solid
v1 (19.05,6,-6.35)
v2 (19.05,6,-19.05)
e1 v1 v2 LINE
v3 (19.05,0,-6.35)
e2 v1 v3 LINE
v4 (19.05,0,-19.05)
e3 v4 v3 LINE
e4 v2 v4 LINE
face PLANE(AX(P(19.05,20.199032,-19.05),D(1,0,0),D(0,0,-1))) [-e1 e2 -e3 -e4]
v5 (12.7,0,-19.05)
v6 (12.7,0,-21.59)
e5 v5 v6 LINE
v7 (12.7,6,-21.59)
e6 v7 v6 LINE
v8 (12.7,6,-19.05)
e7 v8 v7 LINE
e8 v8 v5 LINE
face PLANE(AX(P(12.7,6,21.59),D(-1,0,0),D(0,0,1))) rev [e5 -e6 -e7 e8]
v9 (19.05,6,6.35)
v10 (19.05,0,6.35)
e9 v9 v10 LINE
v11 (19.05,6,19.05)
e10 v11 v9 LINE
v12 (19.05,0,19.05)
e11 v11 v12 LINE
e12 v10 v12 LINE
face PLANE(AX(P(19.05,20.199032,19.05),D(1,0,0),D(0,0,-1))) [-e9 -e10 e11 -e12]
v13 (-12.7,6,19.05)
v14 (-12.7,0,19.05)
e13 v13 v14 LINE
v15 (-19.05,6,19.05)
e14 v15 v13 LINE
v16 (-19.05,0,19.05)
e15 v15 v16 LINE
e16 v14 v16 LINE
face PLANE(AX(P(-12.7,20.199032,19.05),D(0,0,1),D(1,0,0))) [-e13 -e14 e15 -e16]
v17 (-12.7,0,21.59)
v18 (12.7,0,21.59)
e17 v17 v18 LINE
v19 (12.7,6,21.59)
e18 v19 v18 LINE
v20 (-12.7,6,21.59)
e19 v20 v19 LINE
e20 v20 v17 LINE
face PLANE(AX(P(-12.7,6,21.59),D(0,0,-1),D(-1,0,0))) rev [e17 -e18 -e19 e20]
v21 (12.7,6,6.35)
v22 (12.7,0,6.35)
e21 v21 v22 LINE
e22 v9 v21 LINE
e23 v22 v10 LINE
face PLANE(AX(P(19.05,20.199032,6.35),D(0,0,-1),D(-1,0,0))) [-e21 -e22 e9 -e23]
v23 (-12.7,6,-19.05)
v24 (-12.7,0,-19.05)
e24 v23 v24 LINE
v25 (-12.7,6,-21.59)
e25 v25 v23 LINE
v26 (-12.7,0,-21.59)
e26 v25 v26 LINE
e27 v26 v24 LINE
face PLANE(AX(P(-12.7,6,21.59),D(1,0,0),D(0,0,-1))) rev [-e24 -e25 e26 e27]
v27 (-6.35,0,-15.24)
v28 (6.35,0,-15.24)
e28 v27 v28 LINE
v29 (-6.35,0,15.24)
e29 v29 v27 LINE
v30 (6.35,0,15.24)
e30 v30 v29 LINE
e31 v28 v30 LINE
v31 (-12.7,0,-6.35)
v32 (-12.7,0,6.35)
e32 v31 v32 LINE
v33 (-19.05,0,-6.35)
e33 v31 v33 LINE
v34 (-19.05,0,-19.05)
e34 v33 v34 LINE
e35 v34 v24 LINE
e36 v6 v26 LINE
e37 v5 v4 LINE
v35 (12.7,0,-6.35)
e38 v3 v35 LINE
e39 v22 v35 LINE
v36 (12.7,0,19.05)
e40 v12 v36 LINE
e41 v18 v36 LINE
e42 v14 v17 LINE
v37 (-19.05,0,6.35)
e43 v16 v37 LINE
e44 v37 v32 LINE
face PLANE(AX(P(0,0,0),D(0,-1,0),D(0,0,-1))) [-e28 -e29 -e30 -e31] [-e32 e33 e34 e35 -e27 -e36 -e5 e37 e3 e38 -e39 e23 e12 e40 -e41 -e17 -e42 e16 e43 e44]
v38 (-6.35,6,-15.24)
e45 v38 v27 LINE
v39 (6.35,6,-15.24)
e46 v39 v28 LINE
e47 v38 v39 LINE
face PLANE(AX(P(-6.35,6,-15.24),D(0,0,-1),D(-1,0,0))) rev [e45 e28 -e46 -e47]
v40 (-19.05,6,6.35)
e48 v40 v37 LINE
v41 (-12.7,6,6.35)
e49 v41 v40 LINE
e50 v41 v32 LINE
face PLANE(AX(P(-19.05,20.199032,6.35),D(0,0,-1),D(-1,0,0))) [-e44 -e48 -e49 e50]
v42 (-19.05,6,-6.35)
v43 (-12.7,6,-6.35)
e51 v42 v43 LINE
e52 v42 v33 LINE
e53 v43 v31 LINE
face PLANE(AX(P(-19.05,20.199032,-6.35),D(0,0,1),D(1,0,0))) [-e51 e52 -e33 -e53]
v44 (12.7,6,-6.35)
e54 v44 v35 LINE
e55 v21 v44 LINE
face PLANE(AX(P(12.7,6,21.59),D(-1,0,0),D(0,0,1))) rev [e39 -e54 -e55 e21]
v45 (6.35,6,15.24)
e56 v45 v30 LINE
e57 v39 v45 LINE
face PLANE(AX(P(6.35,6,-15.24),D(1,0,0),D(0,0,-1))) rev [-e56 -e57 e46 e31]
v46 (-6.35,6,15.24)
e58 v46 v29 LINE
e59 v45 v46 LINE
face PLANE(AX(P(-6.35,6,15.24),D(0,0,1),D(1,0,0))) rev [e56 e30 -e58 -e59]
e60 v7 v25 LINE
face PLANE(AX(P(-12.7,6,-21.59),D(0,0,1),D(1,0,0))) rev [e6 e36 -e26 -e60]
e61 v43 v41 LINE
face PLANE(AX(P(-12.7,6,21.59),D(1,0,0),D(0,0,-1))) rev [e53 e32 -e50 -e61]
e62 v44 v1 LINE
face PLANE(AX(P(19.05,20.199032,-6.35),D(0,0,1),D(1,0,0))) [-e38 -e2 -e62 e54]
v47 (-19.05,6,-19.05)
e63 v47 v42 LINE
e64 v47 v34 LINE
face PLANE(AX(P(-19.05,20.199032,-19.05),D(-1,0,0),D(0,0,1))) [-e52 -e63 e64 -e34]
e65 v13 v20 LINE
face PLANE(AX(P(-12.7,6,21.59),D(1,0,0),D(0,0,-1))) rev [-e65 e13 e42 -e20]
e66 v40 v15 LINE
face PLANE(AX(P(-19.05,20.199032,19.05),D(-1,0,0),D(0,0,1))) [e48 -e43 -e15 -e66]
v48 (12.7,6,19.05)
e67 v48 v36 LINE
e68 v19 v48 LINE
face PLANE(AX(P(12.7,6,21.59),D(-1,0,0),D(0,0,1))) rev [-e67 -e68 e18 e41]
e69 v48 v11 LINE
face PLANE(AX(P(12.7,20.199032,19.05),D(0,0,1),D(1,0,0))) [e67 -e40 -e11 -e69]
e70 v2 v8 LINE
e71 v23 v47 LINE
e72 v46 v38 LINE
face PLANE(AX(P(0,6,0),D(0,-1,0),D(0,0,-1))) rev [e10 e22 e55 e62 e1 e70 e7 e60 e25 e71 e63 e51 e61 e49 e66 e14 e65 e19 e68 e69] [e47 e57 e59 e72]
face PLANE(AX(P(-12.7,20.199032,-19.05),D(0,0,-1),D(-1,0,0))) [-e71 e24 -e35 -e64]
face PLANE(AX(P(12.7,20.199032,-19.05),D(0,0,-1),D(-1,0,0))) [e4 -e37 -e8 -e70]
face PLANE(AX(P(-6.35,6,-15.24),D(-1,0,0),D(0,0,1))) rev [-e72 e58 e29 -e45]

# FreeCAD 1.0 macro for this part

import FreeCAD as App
import Part
import Sketcher
Q = App.Units.Quantity

doc = App.newDocument("Part")
params = doc.addObject("Spreadsheet::Sheet", "Params")
for row, (alias, value) in enumerate([
    ("sketch1_width", "1 in"),
    ("sketch1_height", "1.7 in"),
    ("pad1_length", "6 mm"),
    ("sketch2_height", "0.5 in"),
    ("sketch2_width", "0.25 in"),
    ("pad2_length", "6 mm"),
    ("sketch3_width", "0.5 in"),
    ("sketch3_height", "1.2 in"),
], start=1):
    params.set(f"A{row}", alias)
    params.set(f"B{row}", "=" + value)
    params.setAlias(f"B{row}", alias)

body = doc.addObject("PartDesign::Body", "Body")

sketch1 = doc.addObject("Sketcher::SketchObject", "Sketch")
body.addObject(sketch1)
sketch1.AttachmentSupport = (doc.XZ_Plane, [""])
sketch1.MapMode = "FlatFace"
sketch1.addGeometry(Part.LineSegment(App.Vector(-13, -22, 0), App.Vector(-13, 22, 0)), False)
sketch1.addGeometry(Part.LineSegment(App.Vector(-13, 22, 0), App.Vector(13, 22, 0)), False)
sketch1.addGeometry(Part.LineSegment(App.Vector(13, 22, 0), App.Vector(13, -22, 0)), False)
sketch1.addGeometry(Part.LineSegment(App.Vector(13, -22, 0), App.Vector(-13, -22, 0)), False)
sketch1.addConstraint(Sketcher.Constraint("Coincident", 0, 2, 1, 1))
sketch1.addConstraint(Sketcher.Constraint("Coincident", 1, 2, 2, 1))
sketch1.addConstraint(Sketcher.Constraint("Coincident", 2, 2, 3, 1))
sketch1.addConstraint(Sketcher.Constraint("Coincident", 3, 2, 0, 1))
sketch1.addConstraint(Sketcher.Constraint("Vertical", 0))
sketch1.addConstraint(Sketcher.Constraint("Horizontal", 1))
sketch1.addConstraint(Sketcher.Constraint("Vertical", 2))
sketch1.addConstraint(Sketcher.Constraint("Horizontal", 3))
sketch1.addConstraint(Sketcher.Constraint("Symmetric", 0, 2, 2, 2, -1, 1))
sketch1.addConstraint(Sketcher.Constraint("DistanceX", 1, 1, 1, 2, Q("1 in")))
sketch1.addConstraint(Sketcher.Constraint("DistanceY", 0, 1, 0, 2, Q("1.7 in")))
sketch1.setExpression("Constraints[9]", "Params.sketch1_width")
sketch1.setExpression("Constraints[10]", "Params.sketch1_height")
pad1 = doc.addObject("PartDesign::Pad", "Pad")
body.addObject(pad1)
pad1.Profile = sketch1
pad1.setExpression("Length", "Params.pad1_length")
pad1.Reversed = True

sketch2 = doc.addObject("Sketcher::SketchObject", "Sketch001")
body.addObject(sketch2)
sketch2.AttachmentSupport = (doc.XZ_Plane, [""])
sketch2.MapMode = "FlatFace"
sketch2.addGeometry(Part.LineSegment(App.Vector(-19, 19, 0), App.Vector(-19, 6, 0)), False)
sketch2.addGeometry(Part.LineSegment(App.Vector(-19, 6, 0), App.Vector(-13, 6, 0)), False)
sketch2.addGeometry(Part.LineSegment(App.Vector(-13, 6, 0), App.Vector(-13, 19, 0)), False)
sketch2.addGeometry(Part.LineSegment(App.Vector(-13, 19, 0), App.Vector(-19, 19, 0)), False)
sketch2.addGeometry(Part.LineSegment(App.Vector(13, 19, 0), App.Vector(13, 6, 0)), False)
sketch2.addGeometry(Part.LineSegment(App.Vector(13, 6, 0), App.Vector(19, 6, 0)), False)
sketch2.addGeometry(Part.LineSegment(App.Vector(19, 6, 0), App.Vector(19, 19, 0)), False)
sketch2.addGeometry(Part.LineSegment(App.Vector(19, 19, 0), App.Vector(13, 19, 0)), False)
sketch2.addGeometry(Part.LineSegment(App.Vector(13, -6, 0), App.Vector(13, -19, 0)), False)
sketch2.addGeometry(Part.LineSegment(App.Vector(13, -19, 0), App.Vector(19, -19, 0)), False)
sketch2.addGeometry(Part.LineSegment(App.Vector(19, -19, 0), App.Vector(19, -6, 0)), False)
sketch2.addGeometry(Part.LineSegment(App.Vector(19, -6, 0), App.Vector(13, -6, 0)), False)
sketch2.addGeometry(Part.LineSegment(App.Vector(-19, -6, 0), App.Vector(-19, -19, 0)), False)
sketch2.addGeometry(Part.LineSegment(App.Vector(-19, -19, 0), App.Vector(-13, -19, 0)), False)
sketch2.addGeometry(Part.LineSegment(App.Vector(-13, -19, 0), App.Vector(-13, -6, 0)), False)
sketch2.addGeometry(Part.LineSegment(App.Vector(-13, -6, 0), App.Vector(-19, -6, 0)), False)
sketch2.addConstraint(Sketcher.Constraint("Coincident", 0, 2, 1, 1))
sketch2.addConstraint(Sketcher.Constraint("Coincident", 1, 2, 2, 1))
sketch2.addConstraint(Sketcher.Constraint("Coincident", 2, 2, 3, 1))
sketch2.addConstraint(Sketcher.Constraint("Coincident", 3, 2, 0, 1))
sketch2.addConstraint(Sketcher.Constraint("Coincident", 4, 2, 5, 1))
sketch2.addConstraint(Sketcher.Constraint("Coincident", 5, 2, 6, 1))
sketch2.addConstraint(Sketcher.Constraint("Coincident", 6, 2, 7, 1))
sketch2.addConstraint(Sketcher.Constraint("Coincident", 7, 2, 4, 1))
sketch2.addConstraint(Sketcher.Constraint("Coincident", 8, 2, 9, 1))
sketch2.addConstraint(Sketcher.Constraint("Coincident", 9, 2, 10, 1))
sketch2.addConstraint(Sketcher.Constraint("Coincident", 10, 2, 11, 1))
sketch2.addConstraint(Sketcher.Constraint("Coincident", 11, 2, 8, 1))
sketch2.addConstraint(Sketcher.Constraint("Coincident", 12, 2, 13, 1))
sketch2.addConstraint(Sketcher.Constraint("Coincident", 13, 2, 14, 1))
sketch2.addConstraint(Sketcher.Constraint("Coincident", 14, 2, 15, 1))
sketch2.addConstraint(Sketcher.Constraint("Coincident", 15, 2, 12, 1))
sketch2.addConstraint(Sketcher.Constraint("Vertical", 0))
sketch2.addConstraint(Sketcher.Constraint("Horizontal", 1))
sketch2.addConstraint(Sketcher.Constraint("Vertical", 2))
sketch2.addConstraint(Sketcher.Constraint("Horizontal", 3))
sketch2.addConstraint(Sketcher.Constraint("Vertical", 4))
sketch2.addConstraint(Sketcher.Constraint("Horizontal", 5))
sketch2.addConstraint(Sketcher.Constraint("Vertical", 6))
sketch2.addConstraint(Sketcher.Constraint("Horizontal", 7))
sketch2.addConstraint(Sketcher.Constraint("Vertical", 8))
sketch2.addConstraint(Sketcher.Constraint("Horizontal", 9))
sketch2.addConstraint(Sketcher.Constraint("Vertical", 10))
sketch2.addConstraint(Sketcher.Constraint("Horizontal", 11))
sketch2.addConstraint(Sketcher.Constraint("Vertical", 12))
sketch2.addConstraint(Sketcher.Constraint("Horizontal", 13))
sketch2.addConstraint(Sketcher.Constraint("Vertical", 14))
sketch2.addConstraint(Sketcher.Constraint("Horizontal", 15))
sketch2.addConstraint(Sketcher.Constraint("Symmetric", 2, 2, 8, 2, -1, 1))
sketch2.addConstraint(Sketcher.Constraint("Symmetric", 0, 2, 10, 2, -1, 1))
sketch2.addConstraint(Sketcher.Constraint("Symmetric", 6, 2, 12, 2, -1, 1))
sketch2.addConstraint(Sketcher.Constraint("Symmetric", 4, 2, 14, 2, -1, 1))
sketch2.addConstraint(Sketcher.Constraint("Symmetric", 1, 2, 4, 2, -2))
sketch2.addConstraint(Sketcher.Constraint("Symmetric", 3, 2, 6, 2, -2))
sketch2.addConstraint(Sketcher.Constraint("DistanceY", 0, 2, 0, 1, Q("0.5 in")))
sketch2.addConstraint(Sketcher.Constraint("DistanceX", 1, 2, 4, 2, Q("1 in")))
sketch2.addConstraint(Sketcher.Constraint("DistanceY", 8, 2, 4, 2, Q("1 in")))
sketch2.addConstraint(Sketcher.Constraint("DistanceX", 1, 1, 1, 2, Q("0.25 in")))
sketch2.setExpression("Constraints[38]", "Params.sketch2_height")
sketch2.setExpression("Constraints[41]", "Params.sketch2_width")
pad2 = doc.addObject("PartDesign::Pad", "Pad001")
body.addObject(pad2)
pad2.Profile = sketch2
pad2.setExpression("Length", "Params.pad2_length")
pad2.Reversed = True

sketch3 = doc.addObject("Sketcher::SketchObject", "Sketch002")
body.addObject(sketch3)
sketch3.AttachmentSupport = (doc.XZ_Plane, [""])
sketch3.MapMode = "FlatFace"
sketch3.addGeometry(Part.LineSegment(App.Vector(-6, 15, 0), App.Vector(-6, -15, 0)), False)
sketch3.addGeometry(Part.LineSegment(App.Vector(-6, -15, 0), App.Vector(6, -15, 0)), False)
sketch3.addGeometry(Part.LineSegment(App.Vector(6, -15, 0), App.Vector(6, 15, 0)), False)
sketch3.addGeometry(Part.LineSegment(App.Vector(6, 15, 0), App.Vector(-6, 15, 0)), False)
sketch3.addConstraint(Sketcher.Constraint("Coincident", 0, 2, 1, 1))
sketch3.addConstraint(Sketcher.Constraint("Coincident", 1, 2, 2, 1))
sketch3.addConstraint(Sketcher.Constraint("Coincident", 2, 2, 3, 1))
sketch3.addConstraint(Sketcher.Constraint("Coincident", 3, 2, 0, 1))
sketch3.addConstraint(Sketcher.Constraint("Vertical", 0))
sketch3.addConstraint(Sketcher.Constraint("Horizontal", 1))
sketch3.addConstraint(Sketcher.Constraint("Vertical", 2))
sketch3.addConstraint(Sketcher.Constraint("Horizontal", 3))
sketch3.addConstraint(Sketcher.Constraint("Symmetric", 0, 2, 2, 2, -1, 1))
sketch3.addConstraint(Sketcher.Constraint("DistanceX", 1, 1, 1, 2, Q("0.5 in")))
sketch3.addConstraint(Sketcher.Constraint("DistanceY", 0, 2, 0, 1, Q("1.2 in")))
sketch3.setExpression("Constraints[9]", "Params.sketch3_width")
sketch3.setExpression("Constraints[10]", "Params.sketch3_height")
pocket1 = doc.addObject("PartDesign::Pocket", "Pocket")
body.addObject(pocket1)
pocket1.Profile = sketch3
pocket1.Type = "ThroughAll"

doc.recompute()
